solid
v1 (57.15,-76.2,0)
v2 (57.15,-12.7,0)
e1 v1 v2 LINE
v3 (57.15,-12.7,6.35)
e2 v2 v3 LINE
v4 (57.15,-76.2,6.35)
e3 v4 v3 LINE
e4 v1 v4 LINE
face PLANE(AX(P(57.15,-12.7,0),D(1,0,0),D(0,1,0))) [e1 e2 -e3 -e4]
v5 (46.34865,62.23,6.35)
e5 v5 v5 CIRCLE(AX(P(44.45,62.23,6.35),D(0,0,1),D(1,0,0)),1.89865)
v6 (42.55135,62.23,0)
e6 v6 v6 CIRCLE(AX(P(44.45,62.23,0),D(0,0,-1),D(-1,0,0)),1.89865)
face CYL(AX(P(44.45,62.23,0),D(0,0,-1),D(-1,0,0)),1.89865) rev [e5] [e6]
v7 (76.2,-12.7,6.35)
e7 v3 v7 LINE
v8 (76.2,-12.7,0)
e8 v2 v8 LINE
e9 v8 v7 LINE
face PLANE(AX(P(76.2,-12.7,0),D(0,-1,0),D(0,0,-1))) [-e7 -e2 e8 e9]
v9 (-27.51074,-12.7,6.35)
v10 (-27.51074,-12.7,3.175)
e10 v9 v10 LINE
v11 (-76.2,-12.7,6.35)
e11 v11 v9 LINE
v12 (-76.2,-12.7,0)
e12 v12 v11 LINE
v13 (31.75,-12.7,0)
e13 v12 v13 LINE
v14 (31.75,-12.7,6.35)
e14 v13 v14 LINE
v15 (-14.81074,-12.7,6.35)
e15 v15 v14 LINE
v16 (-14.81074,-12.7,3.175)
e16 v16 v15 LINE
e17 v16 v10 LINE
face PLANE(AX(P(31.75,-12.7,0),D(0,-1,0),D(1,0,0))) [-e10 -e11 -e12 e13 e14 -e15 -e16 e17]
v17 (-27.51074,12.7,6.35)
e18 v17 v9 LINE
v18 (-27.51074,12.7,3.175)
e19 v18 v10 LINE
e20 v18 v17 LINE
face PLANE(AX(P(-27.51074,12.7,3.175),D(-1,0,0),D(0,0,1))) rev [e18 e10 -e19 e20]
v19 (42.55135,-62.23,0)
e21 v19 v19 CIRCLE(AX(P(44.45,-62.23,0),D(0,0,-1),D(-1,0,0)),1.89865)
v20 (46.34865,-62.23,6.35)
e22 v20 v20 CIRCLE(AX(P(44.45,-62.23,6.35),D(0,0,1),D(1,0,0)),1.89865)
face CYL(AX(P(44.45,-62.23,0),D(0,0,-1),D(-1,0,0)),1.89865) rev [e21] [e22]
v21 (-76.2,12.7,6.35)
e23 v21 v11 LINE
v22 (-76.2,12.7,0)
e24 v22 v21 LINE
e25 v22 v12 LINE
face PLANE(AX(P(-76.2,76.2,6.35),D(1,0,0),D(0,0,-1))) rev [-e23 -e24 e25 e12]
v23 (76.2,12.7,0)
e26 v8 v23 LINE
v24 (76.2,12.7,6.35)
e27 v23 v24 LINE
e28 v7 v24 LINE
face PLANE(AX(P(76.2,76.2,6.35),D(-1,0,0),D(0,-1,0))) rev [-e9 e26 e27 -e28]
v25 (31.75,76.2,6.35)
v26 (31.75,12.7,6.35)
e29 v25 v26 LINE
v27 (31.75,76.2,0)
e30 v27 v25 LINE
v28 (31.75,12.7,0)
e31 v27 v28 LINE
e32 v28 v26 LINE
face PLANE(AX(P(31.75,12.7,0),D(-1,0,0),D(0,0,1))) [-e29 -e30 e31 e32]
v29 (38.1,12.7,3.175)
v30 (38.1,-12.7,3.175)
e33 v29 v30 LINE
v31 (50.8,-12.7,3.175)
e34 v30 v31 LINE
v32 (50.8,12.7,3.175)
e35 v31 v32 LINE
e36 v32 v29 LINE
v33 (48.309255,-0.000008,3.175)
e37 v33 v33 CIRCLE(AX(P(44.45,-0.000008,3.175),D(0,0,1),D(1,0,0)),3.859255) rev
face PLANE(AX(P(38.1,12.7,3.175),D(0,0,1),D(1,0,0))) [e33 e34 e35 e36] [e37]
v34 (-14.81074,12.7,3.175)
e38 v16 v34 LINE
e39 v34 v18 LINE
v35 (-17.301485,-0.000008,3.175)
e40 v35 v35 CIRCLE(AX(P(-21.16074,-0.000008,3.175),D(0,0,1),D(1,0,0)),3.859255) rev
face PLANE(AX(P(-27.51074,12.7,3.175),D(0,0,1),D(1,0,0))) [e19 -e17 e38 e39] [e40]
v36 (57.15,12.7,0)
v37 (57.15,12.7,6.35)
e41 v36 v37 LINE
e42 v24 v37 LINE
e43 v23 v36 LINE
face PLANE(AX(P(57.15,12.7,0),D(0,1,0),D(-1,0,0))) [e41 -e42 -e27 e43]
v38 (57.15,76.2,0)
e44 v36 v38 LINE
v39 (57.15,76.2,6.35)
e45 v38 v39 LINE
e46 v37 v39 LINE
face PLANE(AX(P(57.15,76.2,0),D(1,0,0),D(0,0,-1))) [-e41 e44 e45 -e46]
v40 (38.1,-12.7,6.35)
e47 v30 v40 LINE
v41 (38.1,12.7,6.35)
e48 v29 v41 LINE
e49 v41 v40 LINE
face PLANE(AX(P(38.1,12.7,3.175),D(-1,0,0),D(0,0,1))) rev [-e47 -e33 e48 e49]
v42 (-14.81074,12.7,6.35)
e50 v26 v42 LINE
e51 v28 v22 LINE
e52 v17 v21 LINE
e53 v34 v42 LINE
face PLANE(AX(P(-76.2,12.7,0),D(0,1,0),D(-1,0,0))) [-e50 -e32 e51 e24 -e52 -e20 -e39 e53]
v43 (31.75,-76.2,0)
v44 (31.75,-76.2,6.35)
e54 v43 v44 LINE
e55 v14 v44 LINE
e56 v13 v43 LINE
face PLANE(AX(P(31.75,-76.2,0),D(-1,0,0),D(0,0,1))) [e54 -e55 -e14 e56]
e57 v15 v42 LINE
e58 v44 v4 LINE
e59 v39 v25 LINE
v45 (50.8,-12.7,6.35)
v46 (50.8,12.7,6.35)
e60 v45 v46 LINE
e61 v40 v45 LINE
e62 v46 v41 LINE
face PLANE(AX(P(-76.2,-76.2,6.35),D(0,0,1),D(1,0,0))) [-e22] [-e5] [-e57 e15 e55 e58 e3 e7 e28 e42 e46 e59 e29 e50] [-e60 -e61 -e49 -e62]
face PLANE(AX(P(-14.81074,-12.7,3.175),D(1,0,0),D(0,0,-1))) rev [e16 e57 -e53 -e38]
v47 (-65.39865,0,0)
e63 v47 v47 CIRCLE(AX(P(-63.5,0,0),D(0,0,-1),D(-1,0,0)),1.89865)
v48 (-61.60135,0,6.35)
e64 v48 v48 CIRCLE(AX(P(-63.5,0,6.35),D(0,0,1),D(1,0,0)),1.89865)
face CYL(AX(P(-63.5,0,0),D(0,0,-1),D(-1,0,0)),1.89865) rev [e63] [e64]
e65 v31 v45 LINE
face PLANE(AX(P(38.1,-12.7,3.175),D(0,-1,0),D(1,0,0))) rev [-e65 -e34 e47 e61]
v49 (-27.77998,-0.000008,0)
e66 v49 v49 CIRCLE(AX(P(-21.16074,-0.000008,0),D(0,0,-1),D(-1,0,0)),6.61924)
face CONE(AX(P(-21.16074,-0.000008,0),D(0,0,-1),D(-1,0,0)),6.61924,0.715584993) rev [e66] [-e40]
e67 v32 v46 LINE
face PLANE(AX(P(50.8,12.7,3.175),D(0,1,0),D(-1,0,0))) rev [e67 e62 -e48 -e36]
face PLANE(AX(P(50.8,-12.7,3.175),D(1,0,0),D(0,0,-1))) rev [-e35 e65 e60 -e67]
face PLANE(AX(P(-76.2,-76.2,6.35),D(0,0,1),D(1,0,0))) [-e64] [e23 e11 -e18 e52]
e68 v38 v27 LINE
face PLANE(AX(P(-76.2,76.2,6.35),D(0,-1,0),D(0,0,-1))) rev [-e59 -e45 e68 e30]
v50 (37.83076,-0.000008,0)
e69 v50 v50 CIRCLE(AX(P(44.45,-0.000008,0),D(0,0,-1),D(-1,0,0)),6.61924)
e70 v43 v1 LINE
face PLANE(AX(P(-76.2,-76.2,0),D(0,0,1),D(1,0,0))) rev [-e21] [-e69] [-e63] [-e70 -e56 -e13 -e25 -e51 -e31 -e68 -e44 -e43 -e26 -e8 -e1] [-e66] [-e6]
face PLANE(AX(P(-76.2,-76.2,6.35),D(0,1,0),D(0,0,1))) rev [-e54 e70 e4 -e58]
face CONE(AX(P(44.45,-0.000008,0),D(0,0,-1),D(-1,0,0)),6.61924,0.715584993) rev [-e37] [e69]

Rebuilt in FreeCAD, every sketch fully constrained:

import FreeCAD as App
import Part
import Sketcher
from FreeCAD import Vector
Q = App.Units.Quantity


def add_polygon(sketch, points):
    """Adds a closed chain of lines whose ends are joined by coincident constraints."""
    first, n = sketch.GeometryCount, len(points)
    for a, b in zip(points, points[1:] + points[:1]):
        sketch.addGeometry(Part.LineSegment(App.Vector(*a, 0), App.Vector(*b, 0)), False)
    for i in range(n):
        sketch.addConstraint(Sketcher.Constraint("Coincident", first + i, 2, first + (i + 1) % n, 1))

doc = App.newDocument("Part")
body = doc.addObject("PartDesign::Body", "Body")

# Sketch on XY plane
sketch1 = body.newObject("Sketcher::SketchObject", "Sketch")
sketch1.AttachmentSupport = (doc.getObject("XY_Plane"), [""])
sketch1.MapMode = "FlatFace"
add_polygon(sketch1, [(-76.2, 76.2), (-76.2, -76.2), (76.2, -76.2), (76.2, 76.2)])  # lines 0-3
sketch1.addConstraint([
    Sketcher.Constraint("Vertical", 0),
    Sketcher.Constraint("Horizontal", 1),
    Sketcher.Constraint("Vertical", 2),
    Sketcher.Constraint("Horizontal", 3),
    Sketcher.Constraint("Symmetric", 0, 2, 2, 2, -1, 1),
    Sketcher.Constraint("Equal", 3, 0),
    Sketcher.Constraint("DistanceX", 1, 1, 1, 2, Q("6 in")),
])
pad1 = body.newObject("PartDesign::Pad", "Pad")
pad1.Profile = sketch1
pad1.Length = Q("0.25 in")

# Sketch on XY plane
sketch2 = body.newObject("Sketcher::SketchObject", "Sketch001")
sketch2.AttachmentSupport = (doc.getObject("XY_Plane"), [""])
sketch2.MapMode = "FlatFace"
sketch2.AttachmentOffset = App.Placement(Vector(0, 0, 0.25 * 25.4), App.Rotation())
add_polygon(sketch2, [(-98.762, 98.762), (-98.762, -98.762), (98.762, -98.762), (98.762, 98.762)])  # lines 0-3
add_polygon(sketch2, [(31.75, 76.2), (57.15, 76.2), (57.15, 12.7), (76.2, 12.7), (76.2, -12.7), (57.15, -12.7), (57.15, -76.2), (31.75, -76.2), (31.75, -12.7), (-76.2, -12.7), (-76.2, 12.7), (31.75, 12.7)])  # lines 4-15
sketch2.addConstraint([
    Sketcher.Constraint("Vertical", 0),
    Sketcher.Constraint("Horizontal", 1),
    Sketcher.Constraint("Vertical", 2),
    Sketcher.Constraint("Horizontal", 3),
    Sketcher.Constraint("Horizontal", 4),
    Sketcher.Constraint("Vertical", 5),
    Sketcher.Constraint("Horizontal", 6),
    Sketcher.Constraint("Vertical", 7),
    Sketcher.Constraint("Horizontal", 8),
    Sketcher.Constraint("Vertical", 9),
    Sketcher.Constraint("Horizontal", 10),
    Sketcher.Constraint("Vertical", 11),
    Sketcher.Constraint("Horizontal", 12),
    Sketcher.Constraint("Vertical", 13),
    Sketcher.Constraint("Horizontal", 14),
    Sketcher.Constraint("Vertical", 15),
    Sketcher.Constraint("Symmetric", 0, 2, 2, 2, -1, 1),
    Sketcher.Constraint("Symmetric", 6, 2, 12, 2, -1, 1),
    Sketcher.Constraint("Symmetric", 5, 2, 8, 2, -1),
    Sketcher.Constraint("Symmetric", 11, 2, 14, 2, -1),
    Sketcher.Constraint("Equal", 3, 0),
    Sketcher.Constraint("Equal", 10, 7),
    Sketcher.Constraint("Equal", 5, 9),
    Sketcher.Constraint("DistanceX", 4, 1, 4, 2, Q("1 in")),
    Sketcher.Constraint("DistanceY", 5, 2, 5, 1, Q("2.5 in")),
    Sketcher.Constraint("DistanceX", -1, 1, 6, 2, Q("3 in")),
    Sketcher.Constraint("DistanceX", 6, 1, 6, 2, Q("0.75 in")),
    Sketcher.Constraint("DistanceX", 1, 1, 1, 2, Q("197.524 mm")),
])
pocket1 = body.newObject("PartDesign::Pocket", "Pocket")
pocket1.Profile = sketch2
pocket1.Type = "ThroughAll"

# Sketch on YZ plane
sketch3 = body.newObject("Sketcher::SketchObject", "Sketch002")
sketch3.AttachmentSupport = (doc.getObject("YZ_Plane"), [""])
sketch3.MapMode = "FlatFace"
sketch3.AttachmentOffset = App.Placement(Vector(0, 0, -0.8331 * 25.4), App.Rotation())
add_polygon(sketch3, [(-0.000008, 6.35), (-0.000008, 0), (6.619232, 0), (3.378192, 3.72839), (3.378192, 6.35)])  # lines 0-4
sketch3.addGeometry(Part.LineSegment(Vector(-0.000008, 0, 0), Vector(-0.000008, 6.35, 0)), True)  # axis
sketch3.addConstraint([
    Sketcher.Constraint("Vertical", 0),
    Sketcher.Constraint("Horizontal", 1),
    Sketcher.Constraint("Vertical", 3),
    Sketcher.Constraint("Horizontal", 4),
    Sketcher.Constraint("Vertical", 5),
    Sketcher.Constraint("Coincident", 0, 2, -1, 1),
    Sketcher.Constraint("Coincident", 5, 1, -1, 1),
    Sketcher.Constraint("Horizontal", 3, 2, 5, 2),
    Sketcher.Constraint("Angle", 2, Q("131 deg")),
    Sketcher.Constraint("DistanceY", 0, 2, 0, 1, Q("0.25 in")),
    Sketcher.Constraint("DistanceX", 4, 2, 4, 1, Q("0.133 in")),
    Sketcher.Constraint("DistanceX", 1, 1, 1, 2, Q("0.2606 in")),
])
groove = body.newObject("PartDesign::Groove", "Groove")
groove.Profile = sketch3
groove.ReferenceAxis = (sketch3, ["Axis0"])
groove.Angle = 360

# Sketch on YZ plane
sketch4 = body.newObject("Sketcher::SketchObject", "Sketch003")
sketch4.AttachmentSupport = (doc.getObject("YZ_Plane"), [""])
sketch4.MapMode = "FlatFace"
sketch4.AttachmentOffset = App.Placement(Vector(0, 0, 1.75 * 25.4), App.Rotation())
add_polygon(sketch4, [(-0.000008, 6.35), (-0.000008, 0), (6.619232, 0), (3.378192, 3.72839), (3.378192, 6.35)])  # lines 0-4
sketch4.addGeometry(Part.LineSegment(Vector(-0.000008, 0, 0), Vector(-0.000008, 6.35, 0)), True)  # axis
sketch4.addConstraint([
    Sketcher.Constraint("Vertical", 0),
    Sketcher.Constraint("Horizontal", 1),
    Sketcher.Constraint("Vertical", 3),
    Sketcher.Constraint("Horizontal", 4),
    Sketcher.Constraint("Vertical", 5),
    Sketcher.Constraint("Coincident", 0, 2, -1, 1),
    Sketcher.Constraint("Coincident", 5, 1, -1, 1),
    Sketcher.Constraint("Horizontal", 3, 2, 5, 2),
    Sketcher.Constraint("Angle", 2, Q("131 deg")),
    Sketcher.Constraint("DistanceY", 0, 2, 0, 1, Q("0.25 in")),
    Sketcher.Constraint("DistanceX", 4, 2, 4, 1, Q("0.133 in")),
    Sketcher.Constraint("DistanceX", 1, 1, 1, 2, Q("0.2606 in")),
])
groove2 = body.newObject("PartDesign::Groove", "Groove001")
groove2.Profile = sketch4
groove2.ReferenceAxis = (sketch4, ["Axis0"])
groove2.Angle = 360

# Sketch on XY plane
sketch5 = body.newObject("Sketcher::SketchObject", "Sketch004")
sketch5.AttachmentSupport = (doc.getObject("XY_Plane"), [""])
sketch5.MapMode = "FlatFace"
sketch5.addGeometry([
    Part.Circle(Vector(-63.5, 0, 0), Vector(0, 0, 1), 1.89865),
    Part.Circle(Vector(44.45, 62.23, 0), Vector(0, 0, 1), 1.89865),
    Part.Circle(Vector(44.45, -62.23, 0), Vector(0, 0, 1), 1.89865),
], False)
sketch5.addConstraint([
    Sketcher.Constraint("Equal", 0, 1),
    Sketcher.Constraint("Equal", 1, 2),
    Sketcher.Constraint("Symmetric", 1, 3, 2, 3, -1),
    Sketcher.Constraint("PointOnObject", 0, 3, -1),
    Sketcher.Constraint("Diameter", 0, Q("0.1495 in")),
    Sketcher.Constraint("DistanceX", 0, 3, -1, 1, Q("2.5 in")),
    Sketcher.Constraint("DistanceY", 2, 3, 1, 3, Q("4.9 in")),
    Sketcher.Constraint("DistanceX", -1, 1, 1, 3, Q("1.75 in")),
])
doc.recompute()
hole = body.newObject("PartDesign::Hole", "Hole")
hole.Profile = sketch5
hole.ThreadType = "None"
hole.Diameter = Q("0.1495 in")
hole.DepthType = "Dimension"
hole.Depth = Q("0.59 in")
hole.DrillPoint = "Angled"
hole.DrillPointAngle = 118
hole.Reversed = True

# Sketch on XY plane
sketch6 = body.newObject("Sketcher::SketchObject", "Sketch005")
sketch6.AttachmentSupport = (doc.getObject("XY_Plane"), [""])
sketch6.MapMode = "FlatFace"
sketch6.AttachmentOffset = App.Placement(Vector(0, 0, 0.25 * 25.4), App.Rotation())
add_polygon(sketch6, [(-27.51074, 12.7), (-27.51074, -12.702586), (-14.81074, -12.7), (-14.81074, 12.7)])  # lines 0-3
sketch6.addConstraint([
    Sketcher.Constraint("Vertical", 0),
    Sketcher.Constraint("Vertical", 2),
    Sketcher.Constraint("Horizontal", 3),
    Sketcher.Constraint("DistanceY", 2, 1, 2, 2, Q("1 in")),
    Sketcher.Constraint("DistanceX", 3, 2, 3, 1, Q("0.5 in")),
    Sketcher.Constraint("DistanceY", 1, 2, -1, 1, Q("0.5 in")),
    Sketcher.Constraint("DistanceX", 0, 2, -1, 1, Q("1.0831 in")),
    Sketcher.Constraint("DistanceY", 0, 2, 0, 1, Q("25.402586 mm")),
])
pocket2 = body.newObject("PartDesign::Pocket", "Pocket001")
pocket2.Profile = sketch6
pocket2.Length = Q("0.125 in")

# Sketch on XY plane
sketch7 = body.newObject("Sketcher::SketchObject", "Sketch006")
sketch7.AttachmentSupport = (doc.getObject("XY_Plane"), [""])
sketch7.MapMode = "FlatFace"
sketch7.AttachmentOffset = App.Placement(Vector(0, 0, 0.25 * 25.4), App.Rotation())
add_polygon(sketch7, [(38.1, 12.7), (38.1, -12.7), (50.8, -12.7), (50.8, 12.7)])  # lines 0-3
sketch7.addConstraint([
    Sketcher.Constraint("Vertical", 0),
    Sketcher.Constraint("Horizontal", 1),
    Sketcher.Constraint("Vertical", 2),
    Sketcher.Constraint("Horizontal", 3),
    Sketcher.Constraint("DistanceY", 0, 2, 0, 1, Q("1 in")),
    Sketcher.Constraint("DistanceX", 1, 1, 1, 2, Q("0.5 in")),
    Sketcher.Constraint("DistanceX", -1, 1, 1, 2, Q("2 in")),
    Sketcher.Constraint("DistanceY", 0, 2, -1, 1, Q("0.5 in")),
])
pocket3 = body.newObject("PartDesign::Pocket", "Pocket002")
pocket3.Profile = sketch7
pocket3.Length = Q("0.125 in")

doc.recompute()
